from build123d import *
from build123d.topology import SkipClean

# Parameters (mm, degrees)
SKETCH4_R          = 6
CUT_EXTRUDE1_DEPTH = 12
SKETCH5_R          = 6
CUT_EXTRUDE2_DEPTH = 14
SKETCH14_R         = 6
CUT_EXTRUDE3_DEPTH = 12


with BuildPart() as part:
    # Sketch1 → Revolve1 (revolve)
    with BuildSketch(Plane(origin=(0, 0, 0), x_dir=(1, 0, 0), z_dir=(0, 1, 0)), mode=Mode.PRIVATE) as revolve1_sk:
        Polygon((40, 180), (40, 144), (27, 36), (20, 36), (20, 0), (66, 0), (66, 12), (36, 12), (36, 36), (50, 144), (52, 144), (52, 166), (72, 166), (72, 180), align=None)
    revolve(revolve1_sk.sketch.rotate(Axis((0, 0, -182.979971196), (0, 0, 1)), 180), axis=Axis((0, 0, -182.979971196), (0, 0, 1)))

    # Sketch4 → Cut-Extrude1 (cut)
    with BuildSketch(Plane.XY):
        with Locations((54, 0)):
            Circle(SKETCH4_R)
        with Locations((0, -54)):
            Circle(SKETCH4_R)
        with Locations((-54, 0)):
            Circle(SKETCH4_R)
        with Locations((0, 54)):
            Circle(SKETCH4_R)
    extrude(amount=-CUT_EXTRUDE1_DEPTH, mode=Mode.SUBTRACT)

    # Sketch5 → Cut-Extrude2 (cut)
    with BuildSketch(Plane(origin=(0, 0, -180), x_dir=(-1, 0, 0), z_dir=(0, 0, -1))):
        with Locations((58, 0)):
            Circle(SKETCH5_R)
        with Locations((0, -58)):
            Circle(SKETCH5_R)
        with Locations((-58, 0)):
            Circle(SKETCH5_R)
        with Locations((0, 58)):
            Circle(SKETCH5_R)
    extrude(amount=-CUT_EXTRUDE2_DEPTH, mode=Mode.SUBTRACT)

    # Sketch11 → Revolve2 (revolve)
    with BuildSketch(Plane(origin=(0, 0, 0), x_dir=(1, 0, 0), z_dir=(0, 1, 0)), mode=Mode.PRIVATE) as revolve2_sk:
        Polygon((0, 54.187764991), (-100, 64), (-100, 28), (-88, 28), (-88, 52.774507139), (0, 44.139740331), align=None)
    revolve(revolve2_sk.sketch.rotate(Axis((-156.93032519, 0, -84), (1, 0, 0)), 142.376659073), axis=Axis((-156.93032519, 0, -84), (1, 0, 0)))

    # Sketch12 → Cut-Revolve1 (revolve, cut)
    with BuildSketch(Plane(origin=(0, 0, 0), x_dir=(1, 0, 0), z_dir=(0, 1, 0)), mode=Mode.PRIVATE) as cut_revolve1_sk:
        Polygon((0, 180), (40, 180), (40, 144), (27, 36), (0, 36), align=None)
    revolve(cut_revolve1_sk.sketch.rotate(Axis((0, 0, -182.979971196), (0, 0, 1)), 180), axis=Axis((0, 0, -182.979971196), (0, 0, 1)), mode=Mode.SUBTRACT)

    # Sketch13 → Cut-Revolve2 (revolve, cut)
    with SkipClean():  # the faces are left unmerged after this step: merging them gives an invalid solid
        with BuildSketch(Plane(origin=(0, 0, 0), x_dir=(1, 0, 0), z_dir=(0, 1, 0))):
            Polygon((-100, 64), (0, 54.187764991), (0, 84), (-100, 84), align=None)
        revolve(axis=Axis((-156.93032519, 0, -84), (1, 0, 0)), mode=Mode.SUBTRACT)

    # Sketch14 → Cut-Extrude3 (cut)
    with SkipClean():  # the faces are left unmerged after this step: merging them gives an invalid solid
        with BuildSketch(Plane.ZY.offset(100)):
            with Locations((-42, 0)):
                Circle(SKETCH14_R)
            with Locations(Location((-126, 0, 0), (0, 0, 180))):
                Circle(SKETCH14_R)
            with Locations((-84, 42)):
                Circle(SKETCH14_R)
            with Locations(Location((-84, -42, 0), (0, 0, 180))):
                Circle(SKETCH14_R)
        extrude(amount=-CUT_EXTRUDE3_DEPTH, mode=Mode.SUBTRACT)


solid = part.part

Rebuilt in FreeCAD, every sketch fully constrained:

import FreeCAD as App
import Part
import Sketcher
from FreeCAD import Vector


def add_polygon(sketch, points):
    """Adds a closed chain of lines whose ends are joined by coincident constraints."""
    first, n = sketch.GeometryCount, len(points)
    for a, b in zip(points, points[1:] + points[:1]):
        sketch.addGeometry(Part.LineSegment(App.Vector(*a, 0), App.Vector(*b, 0)), False)
    for i in range(n):
        sketch.addConstraint(Sketcher.Constraint("Coincident", first + i, 2, first + (i + 1) % n, 1))

doc = App.newDocument("Part")
params = doc.addObject("Spreadsheet::Sheet", "Params")
for row, (alias, value) in enumerate([
    ("sketch1_width", "7 mm"),
    ("sketch1_width2", "46 mm"),
    ("sketch1_width3", "30 mm"),
    ("sketch1_width4", "2 mm"),
    ("sketch1_width5", "20 mm"),
    ("revolution_angle", "360 deg"),
    ("sketch2_diameter", "12 mm"),
    ("pocket1_length", "12 mm"),
    ("sketch3_diameter", "12 mm"),
    ("pocket2_length", "14 mm"),
    ("sketch4_width", "12 mm"),
    ("sketch4_width2", "100 mm"),
    ("sketch4_height", "36 mm"),
    ("revolution2_angle", "360 deg"),
    ("sketch5_width", "40 mm"),
    ("sketch5_width2", "27 mm"),
    ("sketch5_height", "144 mm"),
    ("sketch5_height2", "36 mm"),
    ("groove_angle", "360 deg"),
    ("sketch6_width", "100 mm"),
    ("sketch6_height", "20 mm"),
    ("groove2_angle", "360 deg"),
    ("sketch7_diameter", "12 mm"),
    ("pocket3_length", "12 mm"),
], start=1):
    params.set(f"A{row}", alias)
    params.set(f"B{row}", "=" + value)
    params.setAlias(f"B{row}", alias)

body = doc.addObject("PartDesign::Body", "Body")

# Sketch on XZ plane
sketch1 = doc.addObject("Sketcher::SketchObject", "Sketch")
body.addObject(sketch1)
sketch1.AttachmentSupport = (doc.XZ_Plane, [""])
sketch1.MapMode = "FlatFace"
add_polygon(sketch1, [(40, -180), (40, -144), (27, -36), (20, -36), (20, 0), (66, 0), (66, -12), (36, -12), (36, -36), (50, -144), (52, -144), (52, -166), (72, -166), (72, -180)])  # lines 0-13
sketch1.addConstraint([
    Sketcher.Constraint("Vertical", 0),
    Sketcher.Constraint("Horizontal", 2),
    Sketcher.Constraint("Vertical", 3),
    Sketcher.Constraint("Horizontal", 4),
    Sketcher.Constraint("Vertical", 5),
    Sketcher.Constraint("Horizontal", 6),
    Sketcher.Constraint("Vertical", 7),
    Sketcher.Constraint("Horizontal", 9),
    Sketcher.Constraint("Vertical", 10),
    Sketcher.Constraint("Horizontal", 11),
    Sketcher.Constraint("Vertical", 12),
    Sketcher.Constraint("Horizontal", 13),
    Sketcher.Constraint("PointOnObject", 3, 2, -1),
    Sketcher.Constraint("Horizontal", 2, 2, 7, 2),
    Sketcher.Constraint("Horizontal", 0, 2, 8, 2),
    Sketcher.Constraint("Equal", 0, 3),
    Sketcher.Constraint("DistanceX", 2, 2, 2, 1, 7.0),
    Sketcher.Constraint("DistanceX", 4, 1, 4, 2, 46.0),
    Sketcher.Constraint("DistanceX", 6, 2, 6, 1, 30.0),
    Sketcher.Constraint("DistanceX", 9, 1, 9, 2, 2.0),
    Sketcher.Constraint("DistanceX", 11, 1, 11, 2, 20.0),
    Sketcher.Constraint("DistanceX", 13, 2, 13, 1, 32.0),
    Sketcher.Constraint("DistanceY", 0, 1, 0, 2, 36.0),
    Sketcher.Constraint("DistanceY", 5, 2, 5, 1, 12.0),
    Sketcher.Constraint("DistanceY", 10, 2, 10, 1, 22.0),
    Sketcher.Constraint("DistanceX", -1, 1, 0, 2, 40.0),
    Sketcher.Constraint("DistanceY", 0, 2, -1, 1, 144.0),
    Sketcher.Constraint("DistanceX", -1, 1, 1, 2, 27.0),
])
sketch1.setExpression("Constraints[30]", "Params.sketch1_width")
sketch1.setExpression("Constraints[31]", "Params.sketch1_width2")
sketch1.setExpression("Constraints[32]", "Params.sketch1_width3")
sketch1.setExpression("Constraints[33]", "Params.sketch1_width4")
sketch1.setExpression("Constraints[34]", "Params.sketch1_width5")
revolution = doc.addObject("PartDesign::Revolution", "Revolution")
body.addObject(revolution)
revolution.Profile = sketch1
revolution.ReferenceAxis = (sketch1, ["V_Axis"])
revolution.setExpression("Angle", "Params.revolution_angle")

# Sketch on XY plane
sketch2 = doc.addObject("Sketcher::SketchObject", "Sketch001")
body.addObject(sketch2)
sketch2.AttachmentSupport = (doc.XY_Plane, [""])
sketch2.MapMode = "FlatFace"
sketch2.addGeometry([
    Part.Circle(Vector(54, 0, 0), Vector(0, 0, 1), 6),
    Part.Circle(Vector(0, -54, 0), Vector(0, 0, 1), 6),
    Part.Circle(Vector(-54, 0, 0), Vector(0, 0, 1), 6),
    Part.Circle(Vector(0, 54, 0), Vector(0, 0, 1), 6),
], False)
sketch2.addConstraint([
    Sketcher.Constraint("Equal", 0, 1),
    Sketcher.Constraint("Equal", 1, 2),
    Sketcher.Constraint("Equal", 2, 3),
    Sketcher.Constraint("Symmetric", 0, 3, 2, 3, -1, 1),
    Sketcher.Constraint("Symmetric", 1, 3, 3, 3, -1, 1),
    Sketcher.Constraint("PointOnObject", 0, 3, -1),
    Sketcher.Constraint("PointOnObject", 1, 3, -2),
    Sketcher.Constraint("Diameter", 0, 12.0),
    Sketcher.Constraint("DistanceX", -1, 1, 0, 3, 54.0),
    Sketcher.Constraint("DistanceY", 1, 3, -1, 1, 54.0),
])
sketch2.setExpression("Constraints[7]", "Params.sketch2_diameter")
pocket1 = doc.addObject("PartDesign::Pocket", "Pocket")
body.addObject(pocket1)
pocket1.Profile = sketch2
pocket1.setExpression("Length", "Params.pocket1_length")

# Sketch on XY plane
sketch3 = doc.addObject("Sketcher::SketchObject", "Sketch002")
body.addObject(sketch3)
sketch3.AttachmentSupport = (doc.XY_Plane, [""])
sketch3.MapMode = "FlatFace"
sketch3.AttachmentOffset = App.Placement(Vector(0, 0, -180), App.Rotation())
sketch3.addGeometry([
    Part.Circle(Vector(-58, 0, 0), Vector(0, 0, 1), 6),
    Part.Circle(Vector(0, -58, 0), Vector(0, 0, 1), 6),
    Part.Circle(Vector(58, 0, 0), Vector(0, 0, 1), 6),
    Part.Circle(Vector(0, 58, 0), Vector(0, 0, 1), 6),
], False)
sketch3.addConstraint([
    Sketcher.Constraint("Equal", 0, 1),
    Sketcher.Constraint("Equal", 1, 2),
    Sketcher.Constraint("Equal", 2, 3),
    Sketcher.Constraint("Symmetric", 0, 3, 2, 3, -1, 1),
    Sketcher.Constraint("Symmetric", 1, 3, 3, 3, -1, 1),
    Sketcher.Constraint("PointOnObject", 0, 3, -1),
    Sketcher.Constraint("PointOnObject", 1, 3, -2),
    Sketcher.Constraint("Diameter", 0, 12.0),
    Sketcher.Constraint("DistanceX", 0, 3, -1, 1, 58.0),
    Sketcher.Constraint("DistanceY", 1, 3, -1, 1, 58.0),
])
sketch3.setExpression("Constraints[7]", "Params.sketch3_diameter")
pocket2 = doc.addObject("PartDesign::Pocket", "Pocket001")
body.addObject(pocket2)
pocket2.Profile = sketch3
pocket2.setExpression("Length", "Params.pocket2_length")
pocket2.Reversed = True

# Sketch on XZ plane
sketch4 = doc.addObject("Sketcher::SketchObject", "Sketch003")
body.addObject(sketch4)
sketch4.AttachmentSupport = (doc.XZ_Plane, [""])
sketch4.MapMode = "FlatFace"
add_polygon(sketch4, [(0, -54), (-100, -64), (-100, -28), (-88, -28), (-88, -53), (0, -44)])  # lines 0-5
sketch4.addGeometry(Part.LineSegment(Vector(-100, -84, 0), Vector(0, -84, 0)), True)  # axis
sketch4.addConstraint([
    Sketcher.Constraint("Vertical", 1),
    Sketcher.Constraint("Horizontal", 2),
    Sketcher.Constraint("Vertical", 3),
    Sketcher.Constraint("Vertical", 5),
    Sketcher.Constraint("Horizontal", 6),
    Sketcher.Constraint("PointOnObject", 4, 2, -2),
    Sketcher.Constraint("PointOnObject", 6, 2, -2),
    Sketcher.Constraint("Parallel", 0, 4),
    Sketcher.Constraint("Vertical", 1, 2, 6, 1),
    Sketcher.Constraint("DistanceX", 2, 1, 2, 2, 12.0),
    Sketcher.Constraint("DistanceX", 6, 1, 6, 2, 100.0),
    Sketcher.Constraint("DistanceY", 1, 1, 1, 2, 36.0),
    Sketcher.Constraint("DistanceY", 0, 2, -1, 1, 64.0),
    Sketcher.Constraint("DistanceY", 6, 1, -1, 1, 84.0),
    Sketcher.Constraint("DistanceY", 3, 2, 3, 1, 24.774507),
    Sketcher.Constraint("DistanceY", 5, 2, 5, 1, 10.048025),
])
sketch4.setExpression("Constraints[15]", "Params.sketch4_width")
sketch4.setExpression("Constraints[16]", "Params.sketch4_width2")
sketch4.setExpression("Constraints[17]", "Params.sketch4_height")
revolution2 = doc.addObject("PartDesign::Revolution", "Revolution001")
body.addObject(revolution2)
revolution2.Profile = sketch4
revolution2.ReferenceAxis = (sketch4, ["Axis0"])
revolution2.setExpression("Angle", "Params.revolution2_angle")

# Sketch on XZ plane
sketch5 = doc.addObject("Sketcher::SketchObject", "Sketch004")
body.addObject(sketch5)
sketch5.AttachmentSupport = (doc.XZ_Plane, [""])
sketch5.MapMode = "FlatFace"
add_polygon(sketch5, [(40, -180), (0, -180), (0, -36), (27, -36), (40, -144)])  # lines 0-4
sketch5.addConstraint([
    Sketcher.Constraint("Horizontal", 0),
    Sketcher.Constraint("Vertical", 1),
    Sketcher.Constraint("Horizontal", 2),
    Sketcher.Constraint("Vertical", 4),
    Sketcher.Constraint("PointOnObject", 0, 2, -2),
    Sketcher.Constraint("DistanceX", 0, 2, 0, 1, 40.0),
    Sketcher.Constraint("DistanceX", 2, 1, 2, 2, 27.0),
    Sketcher.Constraint("DistanceY", 1, 1, 1, 2, 144.0),
    Sketcher.Constraint("DistanceY", 4, 2, 4, 1, 36.0),
    Sketcher.Constraint("DistanceY", 0, 2, -1, 1, 180.0),
])
sketch5.setExpression("Constraints[10]", "Params.sketch5_width")
sketch5.setExpression("Constraints[11]", "Params.sketch5_width2")
sketch5.setExpression("Constraints[12]", "Params.sketch5_height")
sketch5.setExpression("Constraints[13]", "Params.sketch5_height2")
groove = doc.addObject("PartDesign::Groove", "Groove")
body.addObject(groove)
groove.Profile = sketch5
groove.ReferenceAxis = (sketch5, ["V_Axis"])
groove.setExpression("Angle", "Params.groove_angle")

# Sketch on XZ plane
sketch6 = doc.addObject("Sketcher::SketchObject", "Sketch005")
body.addObject(sketch6)
sketch6.AttachmentSupport = (doc.XZ_Plane, [""])
sketch6.MapMode = "FlatFace"
add_polygon(sketch6, [(-100, -64), (0, -54), (0, -84), (-100, -84)])  # lines 0-3
sketch6.addGeometry(Part.LineSegment(Vector(-100, -84, 0), Vector(0, -84, 0)), True)  # axis
sketch6.addConstraint([
    Sketcher.Constraint("Vertical", 1),
    Sketcher.Constraint("Horizontal", 2),
    Sketcher.Constraint("Vertical", 3),
    Sketcher.Constraint("Horizontal", 4),
    Sketcher.Constraint("Coincident", 4, 1, 2, 2),
    Sketcher.Constraint("PointOnObject", 0, 2, -2),
    Sketcher.Constraint("PointOnObject", 4, 2, -2),
    Sketcher.Constraint("DistanceX", 2, 2, 2, 1, 100.0),
    Sketcher.Constraint("DistanceY", 3, 1, 3, 2, 20.0),
    Sketcher.Constraint("DistanceY", 1, 2, -1, 1, 84.0),
    Sketcher.Constraint("DistanceY", 1, 2, 1, 1, 29.812235),
])
sketch6.setExpression("Constraints[11]", "Params.sketch6_width")
sketch6.setExpression("Constraints[12]", "Params.sketch6_height")
groove2 = doc.addObject("PartDesign::Groove", "Groove001")
body.addObject(groove2)
groove2.Profile = sketch6
groove2.ReferenceAxis = (sketch6, ["Axis0"])
groove2.setExpression("Angle", "Params.groove2_angle")

# Sketch on YZ plane
sketch7 = doc.addObject("Sketcher::SketchObject", "Sketch006")
body.addObject(sketch7)
sketch7.AttachmentSupport = (doc.YZ_Plane, [""])
sketch7.MapMode = "FlatFace"
sketch7.AttachmentOffset = App.Placement(Vector(0, 0, -100), App.Rotation())
sketch7.addGeometry([
    Part.Circle(Vector(0, -42, 0), Vector(0, 0, 1), 6),
    Part.Circle(Vector(0, -126, 0), Vector(0, 0, 1), 6),
    Part.Circle(Vector(42, -84, 0), Vector(0, 0, 1), 6),
    Part.Circle(Vector(-42, -84, 0), Vector(0, 0, 1), 6),
], False)
sketch7.addConstraint([
    Sketcher.Constraint("Equal", 0, 1),
    Sketcher.Constraint("Equal", 1, 2),
    Sketcher.Constraint("Equal", 2, 3),
    Sketcher.Constraint("Symmetric", 2, 3, 3, 3, -2),
    Sketcher.Constraint("PointOnObject", 0, 3, -2),
    Sketcher.Constraint("PointOnObject", 1, 3, -2),
    Sketcher.Constraint("Diameter", 0, 12.0),
    Sketcher.Constraint("DistanceY", 0, 3, -1, 1, 42.0),
    Sketcher.Constraint("DistanceY", 1, 3, -1, 1, 126.0),
    Sketcher.Constraint("DistanceX", -1, 1, 2, 3, 42.0),
    Sketcher.Constraint("DistanceY", 2, 3, -1, 1, 84.0),
])
sketch7.setExpression("Constraints[6]", "Params.sketch7_diameter")
pocket3 = doc.addObject("PartDesign::Pocket", "Pocket002")
body.addObject(pocket3)
pocket3.Profile = sketch7
pocket3.setExpression("Length", "Params.pocket3_length")
pocket3.Reversed = True

doc.recompute()
